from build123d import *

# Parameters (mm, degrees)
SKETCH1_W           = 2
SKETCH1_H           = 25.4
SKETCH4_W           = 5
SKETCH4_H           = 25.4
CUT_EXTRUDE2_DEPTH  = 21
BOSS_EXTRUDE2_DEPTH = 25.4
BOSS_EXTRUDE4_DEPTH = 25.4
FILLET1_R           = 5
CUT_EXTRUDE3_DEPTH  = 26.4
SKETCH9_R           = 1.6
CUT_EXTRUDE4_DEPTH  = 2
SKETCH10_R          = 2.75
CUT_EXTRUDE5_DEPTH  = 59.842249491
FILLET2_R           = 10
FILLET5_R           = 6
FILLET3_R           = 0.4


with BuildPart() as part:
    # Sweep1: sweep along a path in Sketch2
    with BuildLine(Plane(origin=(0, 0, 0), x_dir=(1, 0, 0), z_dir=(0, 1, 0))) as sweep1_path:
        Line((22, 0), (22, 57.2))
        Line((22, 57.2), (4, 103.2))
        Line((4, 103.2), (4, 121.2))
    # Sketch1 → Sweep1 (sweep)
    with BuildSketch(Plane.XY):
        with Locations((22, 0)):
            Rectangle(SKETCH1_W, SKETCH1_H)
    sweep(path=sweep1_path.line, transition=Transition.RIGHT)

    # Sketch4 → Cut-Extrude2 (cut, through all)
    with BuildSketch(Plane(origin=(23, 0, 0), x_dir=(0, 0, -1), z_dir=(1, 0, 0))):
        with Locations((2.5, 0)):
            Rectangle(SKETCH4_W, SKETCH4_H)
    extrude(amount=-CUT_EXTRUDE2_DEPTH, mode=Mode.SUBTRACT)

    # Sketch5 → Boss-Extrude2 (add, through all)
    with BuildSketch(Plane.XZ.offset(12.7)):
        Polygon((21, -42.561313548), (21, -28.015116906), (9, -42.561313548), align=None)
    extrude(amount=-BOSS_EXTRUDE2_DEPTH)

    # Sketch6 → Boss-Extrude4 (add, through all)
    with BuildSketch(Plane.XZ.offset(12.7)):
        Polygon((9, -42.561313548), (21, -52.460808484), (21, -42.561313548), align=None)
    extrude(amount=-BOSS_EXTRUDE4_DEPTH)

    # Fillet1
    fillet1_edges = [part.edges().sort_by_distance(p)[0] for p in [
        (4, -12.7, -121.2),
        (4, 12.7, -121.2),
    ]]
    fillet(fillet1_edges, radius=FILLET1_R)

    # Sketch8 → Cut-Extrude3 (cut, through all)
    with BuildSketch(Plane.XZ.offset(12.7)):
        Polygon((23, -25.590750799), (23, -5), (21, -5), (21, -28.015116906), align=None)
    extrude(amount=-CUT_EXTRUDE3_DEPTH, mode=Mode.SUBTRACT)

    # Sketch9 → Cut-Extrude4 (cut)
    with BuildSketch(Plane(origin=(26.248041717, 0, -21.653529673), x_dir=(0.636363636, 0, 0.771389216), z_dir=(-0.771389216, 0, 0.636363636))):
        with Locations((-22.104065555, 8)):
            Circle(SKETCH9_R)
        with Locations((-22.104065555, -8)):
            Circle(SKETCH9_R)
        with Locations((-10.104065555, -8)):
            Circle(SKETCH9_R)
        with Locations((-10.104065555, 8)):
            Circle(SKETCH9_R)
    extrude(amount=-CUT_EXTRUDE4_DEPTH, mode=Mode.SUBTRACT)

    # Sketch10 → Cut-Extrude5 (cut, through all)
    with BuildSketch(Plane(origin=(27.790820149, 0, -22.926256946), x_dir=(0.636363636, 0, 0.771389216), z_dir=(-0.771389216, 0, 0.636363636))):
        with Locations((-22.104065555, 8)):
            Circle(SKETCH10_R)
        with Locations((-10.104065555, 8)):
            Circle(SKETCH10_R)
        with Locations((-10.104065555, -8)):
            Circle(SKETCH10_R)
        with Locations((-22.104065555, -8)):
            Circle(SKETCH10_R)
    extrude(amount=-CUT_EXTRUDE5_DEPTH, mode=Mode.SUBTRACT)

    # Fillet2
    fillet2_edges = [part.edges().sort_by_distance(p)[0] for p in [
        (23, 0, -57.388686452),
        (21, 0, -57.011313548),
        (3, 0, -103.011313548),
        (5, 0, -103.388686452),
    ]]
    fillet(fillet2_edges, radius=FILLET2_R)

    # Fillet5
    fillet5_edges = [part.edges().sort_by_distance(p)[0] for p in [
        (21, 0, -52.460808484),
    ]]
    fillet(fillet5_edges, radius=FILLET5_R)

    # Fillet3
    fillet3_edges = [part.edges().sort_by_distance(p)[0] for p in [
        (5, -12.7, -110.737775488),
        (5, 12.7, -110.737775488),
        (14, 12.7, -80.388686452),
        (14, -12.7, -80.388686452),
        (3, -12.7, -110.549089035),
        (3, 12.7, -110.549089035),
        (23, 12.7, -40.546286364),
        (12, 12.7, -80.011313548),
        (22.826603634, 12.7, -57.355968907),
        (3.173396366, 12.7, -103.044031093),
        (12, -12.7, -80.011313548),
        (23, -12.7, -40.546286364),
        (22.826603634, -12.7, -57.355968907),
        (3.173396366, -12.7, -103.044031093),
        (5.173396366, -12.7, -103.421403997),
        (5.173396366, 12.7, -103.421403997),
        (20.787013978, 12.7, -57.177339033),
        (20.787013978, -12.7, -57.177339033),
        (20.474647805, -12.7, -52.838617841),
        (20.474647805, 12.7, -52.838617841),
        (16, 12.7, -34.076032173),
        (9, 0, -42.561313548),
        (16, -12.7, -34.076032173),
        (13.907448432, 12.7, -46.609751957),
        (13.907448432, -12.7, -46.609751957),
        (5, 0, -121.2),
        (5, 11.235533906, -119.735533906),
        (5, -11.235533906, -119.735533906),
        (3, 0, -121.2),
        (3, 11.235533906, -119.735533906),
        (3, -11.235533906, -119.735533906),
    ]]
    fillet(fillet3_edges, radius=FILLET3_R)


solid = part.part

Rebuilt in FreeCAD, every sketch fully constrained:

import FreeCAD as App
import Part
import Sketcher
Q = App.Units.Quantity


def edges_at(feature, points):
    """Names of the edges that pass closest to the given points."""
    edges = feature.Shape.Edges
    near = lambda p: min(range(len(edges)), key=lambda i: edges[i].distToShape(Part.Vertex(*p))[0])
    return sorted({f"Edge{near(p) + 1}" for p in points})

doc = App.newDocument("Part")
body = doc.addObject("PartDesign::Body", "Body")

sketch1 = body.newObject("Sketcher::SketchObject", "Sketch")
sketch1.AttachmentSupport = (doc.getObject("XY_Plane"), [""])
sketch1.MapMode = "FlatFace"
sketch1.addGeometry([
    Part.LineSegment(App.Vector(21, 12.7, 0), App.Vector(21, -12.7, 0)),
    Part.LineSegment(App.Vector(21, -12.7, 0), App.Vector(23, -12.7, 0)),
    Part.LineSegment(App.Vector(23, -12.7, 0), App.Vector(23, 12.7, 0)),
    Part.LineSegment(App.Vector(23, 12.7, 0), App.Vector(21, 12.7, 0)),
], False)
sketch1.addConstraint([
    Sketcher.Constraint("Coincident", 0, 2, 1, 1),
    Sketcher.Constraint("Coincident", 1, 2, 2, 1),
    Sketcher.Constraint("Coincident", 2, 2, 3, 1),
    Sketcher.Constraint("Coincident", 3, 2, 0, 1),
    Sketcher.Constraint("Vertical", 0),
    Sketcher.Constraint("Horizontal", 1),
    Sketcher.Constraint("Vertical", 2),
    Sketcher.Constraint("Horizontal", 3),
    Sketcher.Constraint("DistanceX", 1, 1, 1, 2, Q("2 mm")),
    Sketcher.Constraint("DistanceY", 0, 2, 0, 1, Q("25.4 mm")),
    Sketcher.Constraint("DistanceX", -1, 1, 0, 2, Q("21 mm")),
    Sketcher.Constraint("DistanceY", 0, 2, -1, 1, Q("12.7 mm")),
])

sketch2 = body.newObject("Sketcher::SketchObject", "Sketch001")
sketch2.AttachmentSupport = (doc.getObject("XZ_Plane"), [""])
sketch2.MapMode = "FlatFace"
sketch2.addGeometry([
    Part.LineSegment(App.Vector(22, 0, 0), App.Vector(22, -57, 0)),
    Part.LineSegment(App.Vector(22, -57, 0), App.Vector(4, -103, 0)),
    Part.LineSegment(App.Vector(4, -103, 0), App.Vector(4, -121, 0)),
], False)
sketch2.addConstraint([
    Sketcher.Constraint("Coincident", 0, 2, 1, 1),
    Sketcher.Constraint("Coincident", 1, 2, 2, 1),
    Sketcher.Constraint("Vertical", 0),
    Sketcher.Constraint("Vertical", 2),
    Sketcher.Constraint("PointOnObject", 0, 1, -1),
    Sketcher.Constraint("DistanceY", 2, 2, 2, 1, Q("18 mm")),
    Sketcher.Constraint("DistanceY", 0, 2, 0, 1, Q("57.2 mm")),
    Sketcher.Constraint("DistanceX", -1, 1, 0, 1, Q("22 mm")),
    Sketcher.Constraint("DistanceX", -1, 1, 1, 2, Q("4 mm")),
    Sketcher.Constraint("DistanceY", 1, 2, 0, 2, Q("46 mm")),
])
doc.recompute()

additivepipe = body.newObject("PartDesign::AdditivePipe", "AdditivePipe")
additivepipe.Profile = sketch1
additivepipe.Spine = (sketch2, ["Edge1", "Edge2", "Edge3"])
additivepipe.Transition = "Right corner"

sketch3 = body.newObject("Sketcher::SketchObject", "Sketch002")
sketch3.AttachmentSupport = (doc.getObject("YZ_Plane"), [""])
sketch3.MapMode = "FlatFace"
sketch3.AttachmentOffset = App.Placement(App.Vector(0, 0, 23), App.Rotation())
sketch3.addGeometry([
    Part.LineSegment(App.Vector(13, 0, 0), App.Vector(-13, 0, 0)),
    Part.LineSegment(App.Vector(-13, 0, 0), App.Vector(-13, -5, 0)),
    Part.LineSegment(App.Vector(-13, -5, 0), App.Vector(13, -5, 0)),
    Part.LineSegment(App.Vector(13, -5, 0), App.Vector(13, 0, 0)),
], False)
sketch3.addConstraint([
    Sketcher.Constraint("Coincident", 0, 2, 1, 1),
    Sketcher.Constraint("Coincident", 1, 2, 2, 1),
    Sketcher.Constraint("Coincident", 2, 2, 3, 1),
    Sketcher.Constraint("Coincident", 3, 2, 0, 1),
    Sketcher.Constraint("Horizontal", 0),
    Sketcher.Constraint("Vertical", 1),
    Sketcher.Constraint("Horizontal", 2),
    Sketcher.Constraint("Vertical", 3),
    Sketcher.Constraint("Symmetric", 0, 2, 3, 2, -1, 1),
    Sketcher.Constraint("DistanceY", 1, 2, 1, 1, Q("5 mm")),
    Sketcher.Constraint("DistanceX", 0, 2, 0, 1, Q("25.4 mm")),
])
pocket1 = body.newObject("PartDesign::Pocket", "Pocket")
pocket1.Profile = sketch3
pocket1.Type = "ThroughAll"

sketch4 = body.newObject("Sketcher::SketchObject", "Sketch003")
sketch4.AttachmentSupport = (doc.getObject("XZ_Plane"), [""])
sketch4.MapMode = "FlatFace"
sketch4.AttachmentOffset = App.Placement(App.Vector(0, 0, 12.7), App.Rotation())
sketch4.addGeometry([
    Part.LineSegment(App.Vector(21, -43, 0), App.Vector(21, -28, 0)),
    Part.LineSegment(App.Vector(21, -28, 0), App.Vector(9, -43, 0)),
    Part.LineSegment(App.Vector(9, -43, 0), App.Vector(21, -43, 0)),
], False)
sketch4.addConstraint([
    Sketcher.Constraint("Coincident", 0, 2, 1, 1),
    Sketcher.Constraint("Coincident", 1, 2, 2, 1),
    Sketcher.Constraint("Coincident", 2, 2, 0, 1),
    Sketcher.Constraint("Vertical", 0),
    Sketcher.Constraint("Horizontal", 2),
    Sketcher.Constraint("DistanceX", 2, 1, 2, 2, Q("12 mm")),
    Sketcher.Constraint("DistanceX", -1, 1, 0, 2, Q("21 mm")),
    Sketcher.Constraint("DistanceY", 0, 1, 0, 2, Q("14.546197 mm")),
    Sketcher.Constraint("DistanceY", 0, 2, -1, 1, Q("28.015117 mm")),
])
pad1 = body.newObject("PartDesign::Pad", "Pad")
pad1.Profile = sketch4
pad1.Length = 25.4
pad1.Reversed = True

sketch5 = body.newObject("Sketcher::SketchObject", "Sketch004")
sketch5.AttachmentSupport = (doc.getObject("XZ_Plane"), [""])
sketch5.MapMode = "FlatFace"
sketch5.AttachmentOffset = App.Placement(App.Vector(0, 0, 12.7), App.Rotation())
sketch5.addGeometry([
    Part.LineSegment(App.Vector(9, -43, 0), App.Vector(21, -52, 0)),
    Part.LineSegment(App.Vector(21, -52, 0), App.Vector(21, -43, 0)),
    Part.LineSegment(App.Vector(21, -43, 0), App.Vector(9, -43, 0)),
], False)
sketch5.addConstraint([
    Sketcher.Constraint("Coincident", 0, 2, 1, 1),
    Sketcher.Constraint("Coincident", 1, 2, 2, 1),
    Sketcher.Constraint("Coincident", 2, 2, 0, 1),
    Sketcher.Constraint("Vertical", 1),
    Sketcher.Constraint("Horizontal", 2),
    Sketcher.Constraint("DistanceX", 2, 2, 2, 1, Q("12 mm")),
    Sketcher.Constraint("DistanceX", -1, 1, 0, 2, Q("21 mm")),
    Sketcher.Constraint("Distance", 0, Q("15.556349 mm")),
    Sketcher.Constraint("DistanceY", 0, 2, -1, 1, Q("52.460808 mm")),
])
pad2 = body.newObject("PartDesign::Pad", "Pad001")
pad2.Profile = sketch5
pad2.Length = 25.4
pad2.Reversed = True
doc.recompute()

fillet = body.newObject("PartDesign::Fillet", "Fillet")
fillet.Base = (pad2, edges_at(pad2, [(4, -12.7, -121.2), (4, 12.7, -121.2)]))
fillet.Radius = 5

sketch6 = body.newObject("Sketcher::SketchObject", "Sketch005")
sketch6.AttachmentSupport = (doc.getObject("XZ_Plane"), [""])
sketch6.MapMode = "FlatFace"
sketch6.AttachmentOffset = App.Placement(App.Vector(0, 0, 12.7), App.Rotation())
sketch6.addGeometry([
    Part.LineSegment(App.Vector(23, -25.6, 0), App.Vector(23, -5, 0)),
    Part.LineSegment(App.Vector(23, -5, 0), App.Vector(21, -5, 0)),
    Part.LineSegment(App.Vector(21, -5, 0), App.Vector(21, -28, 0)),
    Part.LineSegment(App.Vector(21, -28, 0), App.Vector(23, -25.6, 0)),
], False)
sketch6.addConstraint([
    Sketcher.Constraint("Coincident", 0, 2, 1, 1),
    Sketcher.Constraint("Coincident", 1, 2, 2, 1),
    Sketcher.Constraint("Coincident", 2, 2, 3, 1),
    Sketcher.Constraint("Coincident", 3, 2, 0, 1),
    Sketcher.Constraint("Vertical", 0),
    Sketcher.Constraint("Horizontal", 1),
    Sketcher.Constraint("Vertical", 2),
    Sketcher.Constraint("DistanceX", 1, 2, 1, 1, Q("2 mm")),
    Sketcher.Constraint("DistanceX", -1, 1, 0, 2, Q("23 mm")),
    Sketcher.Constraint("DistanceY", 0, 2, -1, 1, Q("5 mm")),
    Sketcher.Constraint("DistanceY", 0, 1, 0, 2, Q("20.590751 mm")),
    Sketcher.Constraint("DistanceY", 2, 2, 2, 1, Q("23.015117 mm")),
])
pocket2 = body.newObject("PartDesign::Pocket", "Pocket001")
pocket2.Profile = sketch6
pocket2.Type = "ThroughAll"

sketch7 = body.newObject("Sketcher::SketchObject", "Sketch006")
sketch7.Placement = App.Placement(App.Vector(26.248042, 0, -21.65353), App.Rotation(App.Vector(0.636363636, 0, 0.771389216), App.Vector(0, 1, 0), App.Vector(-0.771389216, 0, 0.636363636), "ZXY"))
sketch7.addGeometry([
    Part.Circle(App.Vector(-22.1, 8, 0), App.Vector(0, 0, 1), 1.6),
    Part.Circle(App.Vector(-22.1, -8, 0), App.Vector(0, 0, 1), 1.6),
    Part.Circle(App.Vector(-10.1, -8, 0), App.Vector(0, 0, 1), 1.6),
    Part.Circle(App.Vector(-10.1, 8, 0), App.Vector(0, 0, 1), 1.6),
], False)
sketch7.addConstraint([
    Sketcher.Constraint("Equal", 0, 1),
    Sketcher.Constraint("Equal", 1, 2),
    Sketcher.Constraint("Equal", 2, 3),
    Sketcher.Constraint("Symmetric", 0, 3, 1, 3, -1),
    Sketcher.Constraint("Symmetric", 2, 3, 3, 3, -1),
    Sketcher.Constraint("Horizontal", 1, 3, 2, 3),
    Sketcher.Constraint("Diameter", 0, Q("3.2 mm")),
    Sketcher.Constraint("DistanceY", -1, 1, 0, 3, Q("8 mm")),
    Sketcher.Constraint("DistanceX", 1, 3, 2, 3, Q("12 mm")),
    Sketcher.Constraint("DistanceX", 0, 3, -1, 1, Q("22.104066 mm")),
])
pocket3 = body.newObject("PartDesign::Pocket", "Pocket002")
pocket3.Profile = sketch7
pocket3.Length = 2

sketch8 = body.newObject("Sketcher::SketchObject", "Sketch007")
sketch8.Placement = App.Placement(App.Vector(27.79082, 0, -22.926257), App.Rotation(App.Vector(0.636363636, 0, 0.771389216), App.Vector(0, 1, 0), App.Vector(-0.771389216, 0, 0.636363636), "ZXY"))
sketch8.addGeometry([
    Part.Circle(App.Vector(-22.1, 8, 0), App.Vector(0, 0, 1), 2.8),
    Part.Circle(App.Vector(-10.1, 8, 0), App.Vector(0, 0, 1), 2.8),
    Part.Circle(App.Vector(-10.1, -8, 0), App.Vector(0, 0, 1), 2.8),
    Part.Circle(App.Vector(-22.1, -8, 0), App.Vector(0, 0, 1), 2.8),
], False)
sketch8.addConstraint([
    Sketcher.Constraint("Equal", 0, 1),
    Sketcher.Constraint("Equal", 1, 2),
    Sketcher.Constraint("Equal", 2, 3),
    Sketcher.Constraint("Symmetric", 1, 3, 2, 3, -1),
    Sketcher.Constraint("Symmetric", 0, 3, 3, 3, -1),
    Sketcher.Constraint("Horizontal", 0, 3, 1, 3),
    Sketcher.Constraint("Diameter", 0, Q("5.5 mm")),
    Sketcher.Constraint("DistanceY", -1, 1, 0, 3, Q("8 mm")),
    Sketcher.Constraint("DistanceX", 0, 3, 1, 3, Q("12 mm")),
    Sketcher.Constraint("DistanceX", 0, 3, -1, 1, Q("22.104066 mm")),
])
pocket4 = body.newObject("PartDesign::Pocket", "Pocket003")
pocket4.Profile = sketch8
pocket4.Type = "ThroughAll"
doc.recompute()

fillet2 = body.newObject("PartDesign::Fillet", "Fillet001")
fillet2.Base = (pocket4, edges_at(pocket4, [
    (23, 0, -57.389),
    (21, 0, -57.011),
    (3, 0, -103.011),
    (5, 0, -103.389),
]))
fillet2.Radius = 10
doc.recompute()

fillet3 = body.newObject("PartDesign::Fillet", "Fillet002")
fillet3.Base = (fillet2, edges_at(fillet2, [(21, 0, -52.461)]))
fillet3.Radius = 6
doc.recompute()

fillet4 = body.newObject("PartDesign::Fillet", "Fillet003")
fillet4.Base = (fillet3, edges_at(fillet3, [
    (5, -12.7, -110.738),
    (5, 12.7, -110.738),
    (14, 12.7, -80.389),
    (14, -12.7, -80.389),
    (3, -12.7, -110.549),
    (3, 12.7, -110.549),
    (23, 12.7, -40.546),
    (12, 12.7, -80.011),
    (22.827, 12.7, -57.356),
    (3.173, 12.7, -103.044),
    (12, -12.7, -80.011),
    (23, -12.7, -40.546),
    (22.827, -12.7, -57.356),
    (3.173, -12.7, -103.044),
    (5.173, -12.7, -103.421),
    (5.173, 12.7, -103.421),
    (20.787, 12.7, -57.177),
    (20.787, -12.7, -57.177),
    (20.475, -12.7, -52.839),
    (20.475, 12.7, -52.839),
    (16, 12.7, -34.076),
    (9, 0, -42.561),
    (16, -12.7, -34.076),
    (13.907, 12.7, -46.61),
    (13.907, -12.7, -46.61),
    (5, 0, -121.2),
    (5, 11.236, -119.736),
    (5, -11.236, -119.736),
    (3, 0, -121.2),
    (3, 11.236, -119.736),
    (3, -11.236, -119.736),
]))
fillet4.Radius = 0.4

doc.recompute()
